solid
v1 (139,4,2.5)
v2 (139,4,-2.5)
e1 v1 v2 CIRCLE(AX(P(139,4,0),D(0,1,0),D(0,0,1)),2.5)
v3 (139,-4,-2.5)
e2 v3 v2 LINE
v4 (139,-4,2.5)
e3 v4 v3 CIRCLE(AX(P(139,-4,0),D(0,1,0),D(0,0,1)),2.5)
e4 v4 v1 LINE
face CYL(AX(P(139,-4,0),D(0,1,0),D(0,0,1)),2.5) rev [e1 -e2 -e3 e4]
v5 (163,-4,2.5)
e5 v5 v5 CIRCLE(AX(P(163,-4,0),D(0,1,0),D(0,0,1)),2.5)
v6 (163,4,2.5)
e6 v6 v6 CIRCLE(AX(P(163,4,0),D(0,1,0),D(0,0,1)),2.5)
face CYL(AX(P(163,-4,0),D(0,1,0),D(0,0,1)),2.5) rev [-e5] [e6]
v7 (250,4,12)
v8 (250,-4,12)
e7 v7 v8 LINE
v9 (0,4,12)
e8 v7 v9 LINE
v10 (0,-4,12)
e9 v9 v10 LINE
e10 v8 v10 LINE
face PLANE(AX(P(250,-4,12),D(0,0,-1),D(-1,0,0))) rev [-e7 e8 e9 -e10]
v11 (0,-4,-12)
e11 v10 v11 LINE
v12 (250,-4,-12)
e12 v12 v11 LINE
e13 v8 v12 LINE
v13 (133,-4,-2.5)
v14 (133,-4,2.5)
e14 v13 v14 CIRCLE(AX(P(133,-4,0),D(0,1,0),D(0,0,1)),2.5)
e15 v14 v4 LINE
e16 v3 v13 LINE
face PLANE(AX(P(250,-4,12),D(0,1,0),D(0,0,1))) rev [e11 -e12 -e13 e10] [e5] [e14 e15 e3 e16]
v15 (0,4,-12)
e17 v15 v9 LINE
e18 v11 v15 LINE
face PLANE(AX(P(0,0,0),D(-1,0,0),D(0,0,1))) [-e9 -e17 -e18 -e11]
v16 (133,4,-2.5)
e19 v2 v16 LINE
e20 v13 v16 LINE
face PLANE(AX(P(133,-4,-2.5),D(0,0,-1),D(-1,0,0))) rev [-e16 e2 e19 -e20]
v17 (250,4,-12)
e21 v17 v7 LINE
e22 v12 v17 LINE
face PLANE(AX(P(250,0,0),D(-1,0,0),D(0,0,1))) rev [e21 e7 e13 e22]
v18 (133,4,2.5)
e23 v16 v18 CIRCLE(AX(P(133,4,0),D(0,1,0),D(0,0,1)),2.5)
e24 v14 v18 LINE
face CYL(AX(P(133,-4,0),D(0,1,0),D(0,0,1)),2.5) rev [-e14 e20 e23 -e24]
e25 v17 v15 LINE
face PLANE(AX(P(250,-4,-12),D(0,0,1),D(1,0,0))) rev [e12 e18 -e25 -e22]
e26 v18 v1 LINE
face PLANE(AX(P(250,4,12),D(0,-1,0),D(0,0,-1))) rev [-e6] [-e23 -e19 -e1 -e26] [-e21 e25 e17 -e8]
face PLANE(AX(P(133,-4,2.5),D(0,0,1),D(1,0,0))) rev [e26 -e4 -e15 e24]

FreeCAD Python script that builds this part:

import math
import FreeCAD as App
import Part
import Sketcher

V = App.Vector
Q = App.Units.Quantity


def add_polygon(sketch, points):
    """Adds a closed chain of lines whose ends are joined by coincident constraints."""
    first, n = sketch.GeometryCount, len(points)
    for a, b in zip(points, points[1:] + points[:1]):
        sketch.addGeometry(Part.LineSegment(App.Vector(*a, 0), App.Vector(*b, 0)), False)
    for i in range(n):
        sketch.addConstraint(Sketcher.Constraint("Coincident", first + i, 2, first + (i + 1) % n, 1))

doc = App.newDocument("Part")
body = doc.addObject("PartDesign::Body", "Body")

# Sketch on YZ plane
sketch1 = body.newObject("Sketcher::SketchObject", "Sketch")
sketch1.AttachmentSupport = (doc.getObject("YZ_Plane"), [""])
sketch1.MapMode = "FlatFace"
add_polygon(sketch1, [(4, 12), (-4, 12), (-4, -12), (4, -12)])  # lines 0-3
sketch1.addConstraint(Sketcher.Constraint("Horizontal", 0))
sketch1.addConstraint(Sketcher.Constraint("Vertical", 1))
sketch1.addConstraint(Sketcher.Constraint("Horizontal", 2))
sketch1.addConstraint(Sketcher.Constraint("Vertical", 3))
sketch1.addConstraint(Sketcher.Constraint("Symmetric", 0, 2, 2, 2, -1, 1))
sketch1.addConstraint(Sketcher.Constraint("DistanceX", 0, 2, 0, 1, Q("8 mm")))
sketch1.addConstraint(Sketcher.Constraint("DistanceY", 1, 2, 1, 1, Q("24 mm")))
pad1 = body.newObject("PartDesign::Pad", "Pad")
pad1.Profile = sketch1
pad1.Length = 250

# Sketch on XZ plane
sketch2 = body.newObject("Sketcher::SketchObject", "Sketch001")
sketch2.AttachmentSupport = (doc.getObject("XZ_Plane"), [""])
sketch2.MapMode = "FlatFace"
sketch2.addGeometry(Part.Circle(V(163, 0, 0), V(0, 0, 1), 2.5), False)
sketch2.addGeometry(Part.LineSegment(V(139, -2.5, 0), V(133, -2.5, 0)), False)
sketch2.addGeometry(Part.ArcOfCircle(Part.Circle(V(133, 0, 0), V(0, 0, 1), 2.5), math.radians(90), math.radians(270)), False)
sketch2.addGeometry(Part.LineSegment(V(133, 2.5, 0), V(139, 2.5, 0)), False)
sketch2.addGeometry(Part.ArcOfCircle(Part.Circle(V(139, 0, 0), V(0, 0, 1), 2.5), math.radians(-90), math.radians(90)), False)
sketch2.addConstraint(Sketcher.Constraint("Tangent", 1, 2, 2, 2))
sketch2.addConstraint(Sketcher.Constraint("Tangent", 2, 1, 3, 1))
sketch2.addConstraint(Sketcher.Constraint("Tangent", 3, 2, 4, 2))
sketch2.addConstraint(Sketcher.Constraint("Tangent", 4, 1, 1, 1))
sketch2.addConstraint(Sketcher.Constraint("Horizontal", 1))
sketch2.addConstraint(Sketcher.Constraint("Horizontal", 3))
sketch2.addConstraint(Sketcher.Constraint("Equal", 0, 2))
sketch2.addConstraint(Sketcher.Constraint("PointOnObject", 0, 3, -1))
sketch2.addConstraint(Sketcher.Constraint("PointOnObject", 2, 3, -1))
sketch2.addConstraint(Sketcher.Constraint("Diameter", 0, Q("5 mm")))
sketch2.addConstraint(Sketcher.Constraint("DistanceX", 1, 2, 1, 1, Q("6 mm")))
sketch2.addConstraint(Sketcher.Constraint("DistanceX", -1, 1, 0, 3, Q("163 mm")))
sketch2.addConstraint(Sketcher.Constraint("DistanceX", -1, 1, 2, 3, Q("133 mm")))
pocket1 = body.newObject("PartDesign::Pocket", "Pocket")
pocket1.Profile = sketch2
pocket1.Type = "ThroughAll"
pocket1.Midplane = True

doc.recompute()
